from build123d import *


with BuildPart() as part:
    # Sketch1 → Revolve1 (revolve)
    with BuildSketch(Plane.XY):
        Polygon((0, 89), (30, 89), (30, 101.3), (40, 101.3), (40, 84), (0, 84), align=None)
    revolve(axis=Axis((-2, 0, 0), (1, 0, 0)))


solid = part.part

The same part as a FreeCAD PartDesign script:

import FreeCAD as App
import Part
import Sketcher
from FreeCAD import Vector


def add_polygon(sketch, points):
    """Adds a closed chain of lines whose ends are joined by coincident constraints."""
    first, n = sketch.GeometryCount, len(points)
    for a, b in zip(points, points[1:] + points[:1]):
        sketch.addGeometry(Part.LineSegment(App.Vector(*a, 0), App.Vector(*b, 0)), False)
    for i in range(n):
        sketch.addConstraint(Sketcher.Constraint("Coincident", first + i, 2, first + (i + 1) % n, 1))

doc = App.newDocument("Part")
body = doc.addObject("PartDesign::Body", "Body")

# Sketch on XY plane
sketch1 = body.newObject("Sketcher::SketchObject", "Sketch")
sketch1.AttachmentSupport = (doc.getObject("XY_Plane"), [""])
sketch1.MapMode = "FlatFace"
add_polygon(sketch1, [(30, 89), (0, 89), (0, 84), (40, 84), (40, 101), (30, 101)])  # lines 0-5
sketch1.addConstraint(Sketcher.Constraint("Horizontal", 0))
sketch1.addConstraint(Sketcher.Constraint("Vertical", 1))
sketch1.addConstraint(Sketcher.Constraint("Horizontal", 2))
sketch1.addConstraint(Sketcher.Constraint("Vertical", 3))
sketch1.addConstraint(Sketcher.Constraint("Horizontal", 4))
sketch1.addConstraint(Sketcher.Constraint("Vertical", 5))
sketch1.addConstraint(Sketcher.Constraint("PointOnObject", 0, 2, -2))
sketch1.addConstraint(Sketcher.Constraint("DistanceX", 0, 2, 0, 1, 30.0))
sketch1.addConstraint(Sketcher.Constraint("DistanceX", 2, 1, 2, 2, 40.0))
sketch1.addConstraint(Sketcher.Constraint("DistanceY", 1, 2, 1, 1, 5.0))
sketch1.addConstraint(Sketcher.Constraint("DistanceY", 3, 1, 3, 2, 17.3))
sketch1.addConstraint(Sketcher.Constraint("DistanceY", -1, 1, 0, 2, 89.0))
revolution = body.newObject("PartDesign::Revolution", "Revolution")
revolution.Profile = sketch1
revolution.ReferenceAxis = (sketch1, ["H_Axis"])
revolution.Angle = 360

doc.recompute()
